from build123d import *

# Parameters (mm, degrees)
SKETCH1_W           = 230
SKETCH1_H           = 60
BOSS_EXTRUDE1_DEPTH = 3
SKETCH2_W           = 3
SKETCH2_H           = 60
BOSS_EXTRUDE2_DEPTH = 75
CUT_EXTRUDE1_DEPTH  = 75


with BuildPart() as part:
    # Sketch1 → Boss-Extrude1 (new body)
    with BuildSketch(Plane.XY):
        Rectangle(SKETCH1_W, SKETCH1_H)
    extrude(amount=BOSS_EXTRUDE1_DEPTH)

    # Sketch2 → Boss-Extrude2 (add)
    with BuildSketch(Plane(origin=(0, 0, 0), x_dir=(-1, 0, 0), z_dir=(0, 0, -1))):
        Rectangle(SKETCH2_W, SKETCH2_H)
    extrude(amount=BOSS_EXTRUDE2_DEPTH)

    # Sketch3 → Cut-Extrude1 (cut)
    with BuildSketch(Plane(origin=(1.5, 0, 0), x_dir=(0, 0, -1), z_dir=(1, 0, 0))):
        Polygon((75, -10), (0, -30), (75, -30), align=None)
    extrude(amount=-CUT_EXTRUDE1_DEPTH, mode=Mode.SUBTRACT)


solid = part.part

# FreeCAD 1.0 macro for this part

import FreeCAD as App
import Part
import Sketcher
from FreeCAD import Vector
Q = App.Units.Quantity

doc = App.newDocument("Part")
body = doc.addObject("PartDesign::Body", "Body")

sketch1 = body.newObject("Sketcher::SketchObject", "Sketch")
sketch1.AttachmentSupport = (doc.getObject("XY_Plane"), [""])
sketch1.MapMode = "FlatFace"
sketch1.addGeometry(Part.LineSegment(Vector(-115, 30, 0), Vector(-115, -30, 0)), False)
sketch1.addGeometry(Part.LineSegment(Vector(-115, -30, 0), Vector(115, -30, 0)), False)
sketch1.addGeometry(Part.LineSegment(Vector(115, -30, 0), Vector(115, 30, 0)), False)
sketch1.addGeometry(Part.LineSegment(Vector(115, 30, 0), Vector(-115, 30, 0)), False)
sketch1.addConstraint(Sketcher.Constraint("Coincident", 0, 2, 1, 1))
sketch1.addConstraint(Sketcher.Constraint("Coincident", 1, 2, 2, 1))
sketch1.addConstraint(Sketcher.Constraint("Coincident", 2, 2, 3, 1))
sketch1.addConstraint(Sketcher.Constraint("Coincident", 3, 2, 0, 1))
sketch1.addConstraint(Sketcher.Constraint("Vertical", 0))
sketch1.addConstraint(Sketcher.Constraint("Horizontal", 1))
sketch1.addConstraint(Sketcher.Constraint("Vertical", 2))
sketch1.addConstraint(Sketcher.Constraint("Horizontal", 3))
sketch1.addConstraint(Sketcher.Constraint("Symmetric", 0, 2, 2, 2, -1, 1))
sketch1.addConstraint(Sketcher.Constraint("DistanceX", 1, 1, 1, 2, Q("230 mm")))
sketch1.addConstraint(Sketcher.Constraint("DistanceY", 0, 2, 0, 1, Q("60 mm")))
pad1 = body.newObject("PartDesign::Pad", "Pad")
pad1.Profile = sketch1
pad1.Length = 3

sketch2 = body.newObject("Sketcher::SketchObject", "Sketch001")
sketch2.AttachmentSupport = (doc.getObject("XY_Plane"), [""])
sketch2.MapMode = "FlatFace"
sketch2.addGeometry(Part.LineSegment(Vector(1.5, 30, 0), Vector(1.5, -30, 0)), False)
sketch2.addGeometry(Part.LineSegment(Vector(1.5, -30, 0), Vector(-1.5, -30, 0)), False)
sketch2.addGeometry(Part.LineSegment(Vector(-1.5, -30, 0), Vector(-1.5, 30, 0)), False)
sketch2.addGeometry(Part.LineSegment(Vector(-1.5, 30, 0), Vector(1.5, 30, 0)), False)
sketch2.addConstraint(Sketcher.Constraint("Coincident", 0, 2, 1, 1))
sketch2.addConstraint(Sketcher.Constraint("Coincident", 1, 2, 2, 1))
sketch2.addConstraint(Sketcher.Constraint("Coincident", 2, 2, 3, 1))
sketch2.addConstraint(Sketcher.Constraint("Coincident", 3, 2, 0, 1))
sketch2.addConstraint(Sketcher.Constraint("Vertical", 0))
sketch2.addConstraint(Sketcher.Constraint("Horizontal", 1))
sketch2.addConstraint(Sketcher.Constraint("Vertical", 2))
sketch2.addConstraint(Sketcher.Constraint("Horizontal", 3))
sketch2.addConstraint(Sketcher.Constraint("Symmetric", 0, 2, 2, 2, -1, 1))
sketch2.addConstraint(Sketcher.Constraint("DistanceX", 1, 2, 1, 1, Q("3 mm")))
sketch2.addConstraint(Sketcher.Constraint("DistanceY", 0, 2, 0, 1, Q("60 mm")))
pad2 = body.newObject("PartDesign::Pad", "Pad001")
pad2.Profile = sketch2
pad2.Length = 75
pad2.Reversed = True

sketch3 = body.newObject("Sketcher::SketchObject", "Sketch002")
sketch3.AttachmentSupport = (doc.getObject("YZ_Plane"), [""])
sketch3.MapMode = "FlatFace"
sketch3.AttachmentOffset = App.Placement(Vector(0, 0, 1.5), App.Rotation())
sketch3.addGeometry(Part.LineSegment(Vector(-10, -75, 0), Vector(-30, 0, 0)), False)
sketch3.addGeometry(Part.LineSegment(Vector(-30, 0, 0), Vector(-30, -75, 0)), False)
sketch3.addGeometry(Part.LineSegment(Vector(-30, -75, 0), Vector(-10, -75, 0)), False)
sketch3.addConstraint(Sketcher.Constraint("Coincident", 0, 2, 1, 1))
sketch3.addConstraint(Sketcher.Constraint("Coincident", 1, 2, 2, 1))
sketch3.addConstraint(Sketcher.Constraint("Coincident", 2, 2, 0, 1))
sketch3.addConstraint(Sketcher.Constraint("Vertical", 1))
sketch3.addConstraint(Sketcher.Constraint("Horizontal", 2))
sketch3.addConstraint(Sketcher.Constraint("PointOnObject", 0, 2, -1))
sketch3.addConstraint(Sketcher.Constraint("DistanceX", 2, 1, 2, 2, Q("20 mm")))
sketch3.addConstraint(Sketcher.Constraint("DistanceY", 1, 2, 1, 1, Q("75 mm")))
sketch3.addConstraint(Sketcher.Constraint("DistanceX", 0, 2, -1, 1, Q("30 mm")))
pocket1 = body.newObject("PartDesign::Pocket", "Pocket")
pocket1.Profile = sketch3
pocket1.Length = 75

doc.recompute()
